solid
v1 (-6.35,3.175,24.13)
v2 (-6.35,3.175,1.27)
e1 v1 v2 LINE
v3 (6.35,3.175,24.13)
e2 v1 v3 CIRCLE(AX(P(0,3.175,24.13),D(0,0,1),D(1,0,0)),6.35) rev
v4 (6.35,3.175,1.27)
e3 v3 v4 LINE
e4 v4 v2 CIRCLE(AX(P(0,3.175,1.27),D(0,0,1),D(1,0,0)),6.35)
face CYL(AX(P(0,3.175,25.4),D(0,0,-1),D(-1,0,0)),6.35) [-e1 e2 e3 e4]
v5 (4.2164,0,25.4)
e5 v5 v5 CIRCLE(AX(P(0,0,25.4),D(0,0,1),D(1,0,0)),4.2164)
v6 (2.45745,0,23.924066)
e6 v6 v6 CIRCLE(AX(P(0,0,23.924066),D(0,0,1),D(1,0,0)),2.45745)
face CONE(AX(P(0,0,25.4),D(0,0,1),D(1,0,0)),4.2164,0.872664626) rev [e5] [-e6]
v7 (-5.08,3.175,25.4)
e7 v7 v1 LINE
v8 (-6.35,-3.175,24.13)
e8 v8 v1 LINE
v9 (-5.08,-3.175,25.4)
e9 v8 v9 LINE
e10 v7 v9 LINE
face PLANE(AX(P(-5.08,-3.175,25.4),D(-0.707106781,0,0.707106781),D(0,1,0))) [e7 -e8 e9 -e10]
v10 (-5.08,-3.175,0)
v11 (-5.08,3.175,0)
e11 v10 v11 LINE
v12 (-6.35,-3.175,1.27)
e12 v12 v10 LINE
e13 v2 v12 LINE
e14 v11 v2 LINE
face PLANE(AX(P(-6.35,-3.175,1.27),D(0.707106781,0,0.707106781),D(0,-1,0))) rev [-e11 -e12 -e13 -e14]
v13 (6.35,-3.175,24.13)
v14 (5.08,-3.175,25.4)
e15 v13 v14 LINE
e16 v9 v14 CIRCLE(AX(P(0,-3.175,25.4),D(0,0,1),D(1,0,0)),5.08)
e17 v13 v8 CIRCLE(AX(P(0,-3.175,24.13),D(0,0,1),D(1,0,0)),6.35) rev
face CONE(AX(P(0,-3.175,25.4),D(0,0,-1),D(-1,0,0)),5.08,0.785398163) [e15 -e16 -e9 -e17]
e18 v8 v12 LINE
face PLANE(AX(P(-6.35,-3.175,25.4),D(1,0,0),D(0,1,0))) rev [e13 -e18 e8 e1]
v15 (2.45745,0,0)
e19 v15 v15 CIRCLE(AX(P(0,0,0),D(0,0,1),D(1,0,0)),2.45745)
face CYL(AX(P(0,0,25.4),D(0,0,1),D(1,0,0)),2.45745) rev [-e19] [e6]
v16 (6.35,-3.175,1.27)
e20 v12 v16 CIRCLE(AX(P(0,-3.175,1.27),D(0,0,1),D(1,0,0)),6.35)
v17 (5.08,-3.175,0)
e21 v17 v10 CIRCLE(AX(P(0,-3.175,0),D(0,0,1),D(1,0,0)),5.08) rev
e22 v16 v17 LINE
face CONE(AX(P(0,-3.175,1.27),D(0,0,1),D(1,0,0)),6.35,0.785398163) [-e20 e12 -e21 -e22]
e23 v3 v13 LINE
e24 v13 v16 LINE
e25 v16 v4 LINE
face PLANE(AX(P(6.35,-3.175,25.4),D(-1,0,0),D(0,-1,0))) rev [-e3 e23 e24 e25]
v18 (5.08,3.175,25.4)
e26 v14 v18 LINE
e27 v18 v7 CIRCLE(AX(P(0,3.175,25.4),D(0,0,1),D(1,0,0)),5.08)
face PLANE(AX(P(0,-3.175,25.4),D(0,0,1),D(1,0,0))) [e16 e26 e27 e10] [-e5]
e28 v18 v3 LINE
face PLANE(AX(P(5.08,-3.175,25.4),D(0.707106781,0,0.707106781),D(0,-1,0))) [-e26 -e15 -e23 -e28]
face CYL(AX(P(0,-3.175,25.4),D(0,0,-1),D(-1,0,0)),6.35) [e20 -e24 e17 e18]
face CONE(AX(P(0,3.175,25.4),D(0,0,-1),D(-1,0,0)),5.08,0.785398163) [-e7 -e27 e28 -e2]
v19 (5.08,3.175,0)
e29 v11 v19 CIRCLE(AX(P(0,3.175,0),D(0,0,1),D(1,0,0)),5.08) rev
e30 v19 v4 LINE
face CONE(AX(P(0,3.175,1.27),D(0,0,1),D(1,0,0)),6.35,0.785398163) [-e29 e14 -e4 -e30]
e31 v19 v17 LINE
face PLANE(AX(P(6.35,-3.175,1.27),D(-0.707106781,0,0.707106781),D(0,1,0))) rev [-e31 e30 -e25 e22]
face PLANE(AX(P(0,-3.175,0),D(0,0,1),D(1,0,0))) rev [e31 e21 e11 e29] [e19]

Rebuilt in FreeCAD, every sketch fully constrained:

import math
import FreeCAD as App
import Part
import Sketcher
from FreeCAD import Vector
Q = App.Units.Quantity


def edges_at(feature, points):
    """Names of the edges that pass closest to the given points."""
    edges = feature.Shape.Edges
    near = lambda p: min(range(len(edges)), key=lambda i: edges[i].distToShape(Part.Vertex(*p))[0])
    return sorted({f"Edge{near(p) + 1}" for p in points})

doc = App.newDocument("Part")
body = doc.addObject("PartDesign::Body", "Body")

# Sketch on XY plane
sketch1 = doc.addObject("Sketcher::SketchObject", "Sketch")
body.addObject(sketch1)
sketch1.AttachmentSupport = (doc.XY_Plane, [""])
sketch1.MapMode = "FlatFace"
sketch1.addGeometry([
    Part.LineSegment(Vector(-6, 3, 0), Vector(-6, -3, 0)),
    Part.ArcOfCircle(Part.Circle(Vector(0, -3, 0), Vector(0, 0, 1), 6), math.radians(180), math.radians(360)),
    Part.LineSegment(Vector(6, -3, 0), Vector(6, 3, 0)),
    Part.ArcOfCircle(Part.Circle(Vector(0, 3, 0), Vector(0, 0, 1), 6), math.radians(0), math.radians(180)),
], False)
sketch1.addConstraint([
    Sketcher.Constraint("Tangent", 0, 2, 1, 1),
    Sketcher.Constraint("Tangent", 1, 2, 2, 1),
    Sketcher.Constraint("Tangent", 2, 2, 3, 1),
    Sketcher.Constraint("Tangent", 3, 2, 0, 1),
    Sketcher.Constraint("Vertical", 0),
    Sketcher.Constraint("Vertical", 2),
    Sketcher.Constraint("Symmetric", 1, 3, 3, 3, -1, 1),
    Sketcher.Constraint("Radius", 1, Q("0.25 in")),
    Sketcher.Constraint("DistanceY", 0, 2, 0, 1, Q("0.25 in")),
])
pad1 = doc.addObject("PartDesign::Pad", "Pad")
body.addObject(pad1)
pad1.Profile = sketch1
pad1.Length = Q("1 in")
doc.recompute()

chamfer = doc.addObject("PartDesign::Chamfer", "Chamfer")
body.addObject(chamfer)
chamfer.Base = (pad1, edges_at(pad1, [
    (0, 9.525, 25.4),
    (-6.35, 0, 25.4),
    (0, -9.525, 25.4),
    (-6.35, 0, 0),
    (0, 9.525, 0),
    (6.35, 0, 0),
    (0, -9.525, 0),
    (6.35, 0, 25.4),
]))
chamfer.Size = Q("0.05 in")

# Sketch on XY plane
sketch2 = doc.addObject("Sketcher::SketchObject", "Sketch001")
body.addObject(sketch2)
sketch2.AttachmentSupport = (doc.XY_Plane, [""])
sketch2.MapMode = "FlatFace"
sketch2.AttachmentOffset = App.Placement(Vector(0, 0, 1 * 25.4), App.Rotation())
sketch2.addGeometry(Part.Circle(Vector(0, 0, 0), Vector(0, 0, 1), 2.5), False)
sketch2.addConstraint([
    Sketcher.Constraint("Coincident", 0, 3, -1, 1),
    Sketcher.Constraint("Diameter", 0, Q("0.1935 in")),
])
doc.recompute()
hole = doc.addObject("PartDesign::Hole", "Hole")
body.addObject(hole)
hole.Profile = sketch2
hole.ThreadType = "None"
hole.Diameter = Q("0.1935 in")
hole.DepthType = "ThroughAll"
hole.HoleCutType = "Countersink"
hole.HoleCutDiameter = Q("0.332 in")
hole.HoleCutCountersinkAngle = 100

doc.recompute()
